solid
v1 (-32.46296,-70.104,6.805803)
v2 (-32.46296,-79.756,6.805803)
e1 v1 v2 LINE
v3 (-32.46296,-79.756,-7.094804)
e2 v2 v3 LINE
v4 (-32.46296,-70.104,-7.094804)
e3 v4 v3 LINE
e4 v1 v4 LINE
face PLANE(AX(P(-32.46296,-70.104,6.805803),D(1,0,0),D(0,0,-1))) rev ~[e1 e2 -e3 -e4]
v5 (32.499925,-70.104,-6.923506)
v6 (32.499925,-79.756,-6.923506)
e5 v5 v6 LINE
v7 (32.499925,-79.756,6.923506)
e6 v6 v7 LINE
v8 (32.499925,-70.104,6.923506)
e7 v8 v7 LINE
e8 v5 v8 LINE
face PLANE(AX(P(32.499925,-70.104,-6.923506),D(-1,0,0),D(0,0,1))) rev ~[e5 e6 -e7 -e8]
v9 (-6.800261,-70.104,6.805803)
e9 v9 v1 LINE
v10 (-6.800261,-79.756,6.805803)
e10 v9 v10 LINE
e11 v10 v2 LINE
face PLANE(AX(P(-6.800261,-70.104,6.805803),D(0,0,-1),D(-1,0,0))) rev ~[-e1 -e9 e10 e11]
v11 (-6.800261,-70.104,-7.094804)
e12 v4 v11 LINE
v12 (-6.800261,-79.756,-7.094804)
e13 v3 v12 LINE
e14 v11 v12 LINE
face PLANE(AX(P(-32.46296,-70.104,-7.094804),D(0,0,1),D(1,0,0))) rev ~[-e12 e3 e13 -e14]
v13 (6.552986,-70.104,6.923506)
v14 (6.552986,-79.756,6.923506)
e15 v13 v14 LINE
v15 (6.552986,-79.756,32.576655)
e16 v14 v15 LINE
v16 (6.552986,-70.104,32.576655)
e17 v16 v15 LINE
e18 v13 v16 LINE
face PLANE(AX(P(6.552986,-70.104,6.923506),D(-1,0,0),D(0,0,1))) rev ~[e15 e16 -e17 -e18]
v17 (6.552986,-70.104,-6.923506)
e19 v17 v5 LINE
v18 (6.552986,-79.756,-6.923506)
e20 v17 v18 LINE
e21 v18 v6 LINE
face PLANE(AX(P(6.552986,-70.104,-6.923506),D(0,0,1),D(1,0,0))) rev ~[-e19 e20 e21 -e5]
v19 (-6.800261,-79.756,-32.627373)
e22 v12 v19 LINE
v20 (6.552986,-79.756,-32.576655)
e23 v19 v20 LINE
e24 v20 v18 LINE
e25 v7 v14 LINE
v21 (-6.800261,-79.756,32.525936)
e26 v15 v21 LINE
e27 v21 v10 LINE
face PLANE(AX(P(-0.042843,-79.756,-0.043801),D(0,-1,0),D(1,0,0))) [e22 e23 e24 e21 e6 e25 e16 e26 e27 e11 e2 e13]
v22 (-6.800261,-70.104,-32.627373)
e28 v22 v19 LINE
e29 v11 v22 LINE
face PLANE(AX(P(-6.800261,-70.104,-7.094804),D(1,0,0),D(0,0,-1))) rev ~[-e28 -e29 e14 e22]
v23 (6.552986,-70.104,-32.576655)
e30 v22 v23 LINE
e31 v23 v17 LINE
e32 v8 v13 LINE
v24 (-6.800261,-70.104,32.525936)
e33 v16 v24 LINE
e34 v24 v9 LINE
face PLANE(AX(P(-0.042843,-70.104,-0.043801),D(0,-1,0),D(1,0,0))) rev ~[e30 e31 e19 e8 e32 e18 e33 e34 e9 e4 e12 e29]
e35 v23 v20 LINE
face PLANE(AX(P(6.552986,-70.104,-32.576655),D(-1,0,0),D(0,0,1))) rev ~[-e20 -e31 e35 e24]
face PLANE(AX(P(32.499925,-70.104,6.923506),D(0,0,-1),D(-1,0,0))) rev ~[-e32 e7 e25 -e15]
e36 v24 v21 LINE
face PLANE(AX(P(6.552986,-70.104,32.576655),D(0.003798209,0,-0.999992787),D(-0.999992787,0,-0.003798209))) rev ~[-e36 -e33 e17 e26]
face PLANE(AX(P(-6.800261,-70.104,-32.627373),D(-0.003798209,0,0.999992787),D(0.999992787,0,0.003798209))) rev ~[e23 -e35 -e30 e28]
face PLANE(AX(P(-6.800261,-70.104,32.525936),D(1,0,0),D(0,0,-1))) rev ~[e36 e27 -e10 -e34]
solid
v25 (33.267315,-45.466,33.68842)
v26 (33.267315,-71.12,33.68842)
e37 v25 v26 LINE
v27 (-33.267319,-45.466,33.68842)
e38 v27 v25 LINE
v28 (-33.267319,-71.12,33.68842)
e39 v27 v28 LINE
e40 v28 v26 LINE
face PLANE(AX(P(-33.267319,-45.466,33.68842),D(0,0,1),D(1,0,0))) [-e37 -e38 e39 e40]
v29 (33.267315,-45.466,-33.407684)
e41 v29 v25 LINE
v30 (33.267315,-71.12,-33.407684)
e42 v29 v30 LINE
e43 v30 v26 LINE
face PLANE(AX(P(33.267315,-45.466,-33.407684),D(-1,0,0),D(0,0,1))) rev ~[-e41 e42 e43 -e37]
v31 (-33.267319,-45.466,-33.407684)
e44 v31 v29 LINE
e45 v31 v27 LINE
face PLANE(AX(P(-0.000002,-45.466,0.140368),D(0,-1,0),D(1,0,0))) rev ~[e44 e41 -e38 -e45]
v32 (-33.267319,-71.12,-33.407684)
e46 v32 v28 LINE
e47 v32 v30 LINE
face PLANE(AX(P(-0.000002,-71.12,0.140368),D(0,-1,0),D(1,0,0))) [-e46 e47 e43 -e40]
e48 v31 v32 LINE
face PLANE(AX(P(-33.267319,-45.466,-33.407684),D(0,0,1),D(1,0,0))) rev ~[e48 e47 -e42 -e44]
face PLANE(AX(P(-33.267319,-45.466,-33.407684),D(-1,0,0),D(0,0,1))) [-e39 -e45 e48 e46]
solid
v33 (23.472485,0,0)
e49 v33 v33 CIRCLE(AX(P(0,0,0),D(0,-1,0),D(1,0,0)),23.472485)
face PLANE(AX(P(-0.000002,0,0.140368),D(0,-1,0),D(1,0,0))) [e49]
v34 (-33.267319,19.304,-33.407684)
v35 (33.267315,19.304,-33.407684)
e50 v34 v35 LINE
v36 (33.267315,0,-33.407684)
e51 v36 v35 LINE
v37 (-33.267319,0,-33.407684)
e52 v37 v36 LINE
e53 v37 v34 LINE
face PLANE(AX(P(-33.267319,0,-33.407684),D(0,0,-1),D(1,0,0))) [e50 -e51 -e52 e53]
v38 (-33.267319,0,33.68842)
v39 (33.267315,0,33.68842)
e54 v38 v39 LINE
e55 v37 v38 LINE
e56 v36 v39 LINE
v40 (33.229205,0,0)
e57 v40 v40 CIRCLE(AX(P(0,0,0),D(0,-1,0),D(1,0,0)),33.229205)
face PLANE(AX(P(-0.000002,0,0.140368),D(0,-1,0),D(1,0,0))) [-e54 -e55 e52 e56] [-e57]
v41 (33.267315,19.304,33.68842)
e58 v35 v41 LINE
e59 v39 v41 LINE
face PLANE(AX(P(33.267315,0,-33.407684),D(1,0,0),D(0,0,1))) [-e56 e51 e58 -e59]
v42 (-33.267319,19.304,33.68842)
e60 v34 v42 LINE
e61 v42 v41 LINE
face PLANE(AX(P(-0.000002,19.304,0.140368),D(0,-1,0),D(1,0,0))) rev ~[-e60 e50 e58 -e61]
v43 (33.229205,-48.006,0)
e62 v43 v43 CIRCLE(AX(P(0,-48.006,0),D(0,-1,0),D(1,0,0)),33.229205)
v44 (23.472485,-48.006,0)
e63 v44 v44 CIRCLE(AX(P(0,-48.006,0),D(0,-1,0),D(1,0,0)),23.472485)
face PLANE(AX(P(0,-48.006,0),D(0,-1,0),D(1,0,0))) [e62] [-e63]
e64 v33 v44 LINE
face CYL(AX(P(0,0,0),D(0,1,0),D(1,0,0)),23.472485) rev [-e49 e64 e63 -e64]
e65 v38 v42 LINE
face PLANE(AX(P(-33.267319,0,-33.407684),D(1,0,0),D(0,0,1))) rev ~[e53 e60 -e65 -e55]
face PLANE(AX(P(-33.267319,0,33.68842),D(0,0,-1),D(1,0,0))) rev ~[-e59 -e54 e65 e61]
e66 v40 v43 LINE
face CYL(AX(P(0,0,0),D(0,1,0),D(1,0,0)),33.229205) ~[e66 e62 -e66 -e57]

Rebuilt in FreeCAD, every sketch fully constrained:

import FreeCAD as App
import Part
import Sketcher
from FreeCAD import Vector
Q = App.Units.Quantity


def add_polygon(sketch, points):
    """Adds a closed chain of lines whose ends are joined by coincident constraints."""
    first, n = sketch.GeometryCount, len(points)
    for a, b in zip(points, points[1:] + points[:1]):
        sketch.addGeometry(Part.LineSegment(App.Vector(*a, 0), App.Vector(*b, 0)), False)
    for i in range(n):
        sketch.addConstraint(Sketcher.Constraint("Coincident", first + i, 2, first + (i + 1) % n, 1))

doc = App.newDocument("Part")
body = doc.addObject("PartDesign::Body", "Body")

# Sketch on XZ plane
sketch1 = doc.addObject("Sketcher::SketchObject", "Sketch")
body.addObject(sketch1)
sketch1.AttachmentSupport = (doc.XZ_Plane, [""])
sketch1.MapMode = "FlatFace"
sketch1.addGeometry(Part.Circle(Vector(0, 0, 0), Vector(0, 0, 1), 33.229205), False)
sketch1.addGeometry(Part.Circle(Vector(0, 0, 0), Vector(0, 0, 1), 23.472485), False)
sketch1.addConstraint(Sketcher.Constraint("Coincident", 0, 3, -1, 1))
sketch1.addConstraint(Sketcher.Constraint("Coincident", 1, 3, -1, 1))
sketch1.addConstraint(Sketcher.Constraint("Diameter", 0, Q("66.458409 mm")))
sketch1.addConstraint(Sketcher.Constraint("Diameter", 1, Q("46.94497 mm")))
pad1 = doc.addObject("PartDesign::Pad", "Pad")
body.addObject(pad1)
pad1.Profile = sketch1
pad1.Length = Q("1.89 in")

# Sketch on XZ plane
sketch2 = doc.addObject("Sketcher::SketchObject", "Sketch001")
body.addObject(sketch2)
sketch2.AttachmentSupport = (doc.XZ_Plane, [""])
sketch2.MapMode = "FlatFace"
add_polygon(sketch2, [(-33.267319, 33.68842), (-33.267319, -33.407684), (33.267315, -33.407684), (33.267315, 33.68842)])  # lines 0-3
sketch2.addConstraint(Sketcher.Constraint("Vertical", 0))
sketch2.addConstraint(Sketcher.Constraint("Horizontal", 1))
sketch2.addConstraint(Sketcher.Constraint("Vertical", 2))
sketch2.addConstraint(Sketcher.Constraint("Horizontal", 3))
sketch2.addConstraint(Sketcher.Constraint("DistanceX", 1, 1, 1, 2, Q("66.534635 mm")))
sketch2.addConstraint(Sketcher.Constraint("DistanceY", 0, 2, 0, 1, Q("67.096105 mm")))
sketch2.addConstraint(Sketcher.Constraint("DistanceX", 0, 2, -1, 1, Q("33.267319 mm")))
sketch2.addConstraint(Sketcher.Constraint("DistanceY", -1, 1, 2, 2, Q("33.68842 mm")))
pad2 = doc.addObject("PartDesign::Pad", "Pad001")
body.addObject(pad2)
pad2.Profile = sketch2
pad2.Length = Q("0.76 in")
pad2.Reversed = True
body2 = doc.addObject("PartDesign::Body", "Body001")

# Sketch on XZ plane
sketch3 = doc.addObject("Sketcher::SketchObject", "Sketch002")
body2.addObject(sketch3)
sketch3.AttachmentSupport = (doc.getObject("XZ_Plane001"), [""])
sketch3.MapMode = "FlatFace"
sketch3.AttachmentOffset = App.Placement(Vector(0, 0, 2.76 * 25.4), App.Rotation())
add_polygon(sketch3, [(-6.800261, -7.094804), (-6.800261, -32.627373), (6.552986, -32.576655), (6.552986, -6.923506), (32.499925, -6.923506), (32.499925, 6.923506), (6.552986, 6.923506), (6.552986, 32.576655), (-6.800261, 32.525936), (-6.800261, 6.805803), (-32.46296, 6.805803), (-32.46296, -7.094804)])  # lines 0-11
sketch3.addConstraint(Sketcher.Constraint("Vertical", 0))
sketch3.addConstraint(Sketcher.Constraint("Vertical", 2))
sketch3.addConstraint(Sketcher.Constraint("Horizontal", 3))
sketch3.addConstraint(Sketcher.Constraint("Vertical", 4))
sketch3.addConstraint(Sketcher.Constraint("Horizontal", 5))
sketch3.addConstraint(Sketcher.Constraint("Vertical", 6))
sketch3.addConstraint(Sketcher.Constraint("Vertical", 8))
sketch3.addConstraint(Sketcher.Constraint("Horizontal", 9))
sketch3.addConstraint(Sketcher.Constraint("Vertical", 10))
sketch3.addConstraint(Sketcher.Constraint("Horizontal", 11))
sketch3.addConstraint(Sketcher.Constraint("Symmetric", 2, 2, 5, 2, -1))
sketch3.addConstraint(Sketcher.Constraint("Parallel", 1, 7))
sketch3.addConstraint(Sketcher.Constraint("Vertical", 0, 2, 7, 2))
sketch3.addConstraint(Sketcher.Constraint("Equal", 2, 6))
sketch3.addConstraint(Sketcher.Constraint("DistanceX", 9, 2, 9, 1, Q("25.6627 mm")))
sketch3.addConstraint(Sketcher.Constraint("DistanceX", 3, 1, 3, 2, Q("25.946939 mm")))
sketch3.addConstraint(Sketcher.Constraint("DistanceY", 0, 2, 0, 1, Q("25.532569 mm")))
sketch3.addConstraint(Sketcher.Constraint("DistanceY", 2, 1, 2, 2, Q("25.653149 mm")))
sketch3.addConstraint(Sketcher.Constraint("DistanceY", 4, 1, 4, 2, Q("13.847011 mm")))
sketch3.addConstraint(Sketcher.Constraint("DistanceY", 10, 2, 2, 2, Q("0.171299 mm")))
sketch3.addConstraint(Sketcher.Constraint("DistanceY", 8, 2, 8, 1, Q("25.720133 mm")))
sketch3.addConstraint(Sketcher.Constraint("DistanceX", 0, 2, -1, 1, Q("6.800261 mm")))
sketch3.addConstraint(Sketcher.Constraint("Distance", 1, Q("13.353343 mm")))
pad3 = doc.addObject("PartDesign::Pad", "Pad002")
body2.addObject(pad3)
pad3.Profile = sketch3
pad3.Length = Q("0.38 in")
body3 = doc.addObject("PartDesign::Body", "Body002")

# Sketch on XZ plane
sketch4 = doc.addObject("Sketcher::SketchObject", "Sketch003")
body3.addObject(sketch4)
sketch4.AttachmentSupport = (doc.getObject("XZ_Plane002"), [""])
sketch4.MapMode = "FlatFace"
sketch4.AttachmentOffset = App.Placement(Vector(0, 0, 1.79 * 25.4), App.Rotation())
add_polygon(sketch4, [(-33.267319, 33.68842), (-33.267319, -33.407684), (33.267315, -33.407684), (33.267315, 33.68842)])  # lines 0-3
sketch4.addConstraint(Sketcher.Constraint("Vertical", 0))
sketch4.addConstraint(Sketcher.Constraint("Horizontal", 1))
sketch4.addConstraint(Sketcher.Constraint("Vertical", 2))
sketch4.addConstraint(Sketcher.Constraint("Horizontal", 3))
sketch4.addConstraint(Sketcher.Constraint("DistanceX", 1, 1, 1, 2, Q("66.534635 mm")))
sketch4.addConstraint(Sketcher.Constraint("DistanceY", 0, 2, 0, 1, Q("67.096105 mm")))
sketch4.addConstraint(Sketcher.Constraint("DistanceX", 0, 2, -1, 1, Q("33.267319 mm")))
sketch4.addConstraint(Sketcher.Constraint("DistanceY", -1, 1, 2, 2, Q("33.68842 mm")))
pad4 = doc.addObject("PartDesign::Pad", "Pad003")
body3.addObject(pad4)
pad4.Profile = sketch4
pad4.Length = Q("1.01 in")

doc.recompute()
